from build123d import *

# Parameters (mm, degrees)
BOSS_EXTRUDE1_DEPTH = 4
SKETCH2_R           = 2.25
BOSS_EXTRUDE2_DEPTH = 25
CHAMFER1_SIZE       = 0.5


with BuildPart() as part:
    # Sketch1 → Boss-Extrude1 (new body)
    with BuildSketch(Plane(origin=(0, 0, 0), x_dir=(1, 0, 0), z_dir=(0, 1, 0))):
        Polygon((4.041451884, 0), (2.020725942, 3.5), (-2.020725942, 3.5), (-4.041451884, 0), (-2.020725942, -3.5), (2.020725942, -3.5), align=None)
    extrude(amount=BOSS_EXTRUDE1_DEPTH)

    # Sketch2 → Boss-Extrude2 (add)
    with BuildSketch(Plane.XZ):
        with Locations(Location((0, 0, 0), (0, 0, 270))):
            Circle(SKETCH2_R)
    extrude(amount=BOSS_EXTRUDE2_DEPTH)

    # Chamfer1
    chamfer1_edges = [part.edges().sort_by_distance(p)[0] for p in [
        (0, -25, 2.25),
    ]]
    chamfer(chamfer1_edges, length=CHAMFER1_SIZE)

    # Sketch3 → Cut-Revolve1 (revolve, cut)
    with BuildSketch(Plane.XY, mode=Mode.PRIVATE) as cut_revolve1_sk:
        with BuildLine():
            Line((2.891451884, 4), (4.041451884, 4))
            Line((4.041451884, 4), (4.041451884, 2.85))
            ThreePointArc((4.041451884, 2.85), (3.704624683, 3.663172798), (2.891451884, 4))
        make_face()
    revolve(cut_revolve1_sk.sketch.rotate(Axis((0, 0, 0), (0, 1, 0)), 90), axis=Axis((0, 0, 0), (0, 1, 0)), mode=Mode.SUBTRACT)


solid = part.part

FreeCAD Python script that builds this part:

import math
import FreeCAD as App
import Part
import Sketcher

V = App.Vector
Q = App.Units.Quantity


def edges_at(feature, points):
    """Names of the edges that pass closest to the given points."""
    edges = feature.Shape.Edges
    near = lambda p: min(range(len(edges)), key=lambda i: edges[i].distToShape(Part.Vertex(*p))[0])
    return sorted({f"Edge{near(p) + 1}" for p in points})


def add_polygon(sketch, points):
    """Adds a closed chain of lines whose ends are joined by coincident constraints."""
    first, n = sketch.GeometryCount, len(points)
    for a, b in zip(points, points[1:] + points[:1]):
        sketch.addGeometry(Part.LineSegment(App.Vector(*a, 0), App.Vector(*b, 0)), False)
    for i in range(n):
        sketch.addConstraint(Sketcher.Constraint("Coincident", first + i, 2, first + (i + 1) % n, 1))

doc = App.newDocument("Part")
body = doc.addObject("PartDesign::Body", "Body")

sketch1 = doc.addObject("Sketcher::SketchObject", "Sketch")
body.addObject(sketch1)
sketch1.AttachmentSupport = (doc.XZ_Plane, [""])
sketch1.MapMode = "FlatFace"
add_polygon(sketch1, [(4, 0), (2, -3.5), (-2, -3.5), (-4, 0), (-2, 3.5), (2, 3.5)])
sketch1.addConstraint([
    Sketcher.Constraint("Horizontal", 1),
    Sketcher.Constraint("Horizontal", 4),
    Sketcher.Constraint("Symmetric", 0, 2, 3, 2, -1, 1),
    Sketcher.Constraint("Symmetric", 2, 2, 5, 2, -1, 1),
    Sketcher.Constraint("PointOnObject", 2, 2, -1),
    Sketcher.Constraint("Parallel", 2, 5),
    Sketcher.Constraint("Vertical", 1, 2, 3, 2),
    Sketcher.Constraint("Angle", 0, Q("-120 deg")),
    Sketcher.Constraint("DistanceY", 1, 2, 3, 2, 7.0),
    Sketcher.Constraint("DistanceX", 1, 2, 1, 1, 4.041452),
])
pad1 = doc.addObject("PartDesign::Pad", "Pad")
body.addObject(pad1)
pad1.Profile = sketch1
pad1.Length = 4
pad1.Reversed = True

sketch2 = doc.addObject("Sketcher::SketchObject", "Sketch001")
body.addObject(sketch2)
sketch2.AttachmentSupport = (doc.XZ_Plane, [""])
sketch2.MapMode = "FlatFace"
sketch2.addGeometry(Part.Circle(V(0, 0, 0), V(0, 0, 1), 2.2), False)
sketch2.addConstraint([
    Sketcher.Constraint("Coincident", 0, 3, -1, 1),
    Sketcher.Constraint("Diameter", 0, 4.5),
])
pad2 = doc.addObject("PartDesign::Pad", "Pad001")
body.addObject(pad2)
pad2.Profile = sketch2
pad2.Length = 25
doc.recompute()

chamfer = doc.addObject("PartDesign::Chamfer", "Chamfer")
body.addObject(chamfer)
chamfer.Base = (pad2, edges_at(pad2, [(0, -25, 2.25)]))
chamfer.Size = 0.5

sketch3 = doc.addObject("Sketcher::SketchObject", "Sketch002")
body.addObject(sketch3)
sketch3.AttachmentSupport = (doc.XY_Plane, [""])
sketch3.MapMode = "FlatFace"
sketch3.addGeometry([
    Part.LineSegment(V(4, 4, 0), V(2.9, 4, 0)),
    Part.ArcOfCircle(Part.Circle(V(2.9, 2.9, 0), V(0, 0, 1), 1.1), math.radians(0), math.radians(90)),
    Part.LineSegment(V(4, 2.9, 0), V(4, 4, 0)),
], False)
sketch3.addConstraint([
    Sketcher.Constraint("Tangent", 0, 2, 1, 2),
    Sketcher.Constraint("Tangent", 1, 1, 2, 1),
    Sketcher.Constraint("Coincident", 2, 2, 0, 1),
    Sketcher.Constraint("Horizontal", 0),
    Sketcher.Constraint("Vertical", 2),
    Sketcher.Constraint("Radius", 1, 1.15),
    Sketcher.Constraint("DistanceY", -1, 1, 0, 2, 4.0),
    Sketcher.Constraint("DistanceX", -1, 1, 1, 3, 2.891452),
])
groove = doc.addObject("PartDesign::Groove", "Groove")
body.addObject(groove)
groove.Profile = sketch3
groove.ReferenceAxis = (sketch3, ["V_Axis"])
groove.Angle = 360

doc.recompute()
